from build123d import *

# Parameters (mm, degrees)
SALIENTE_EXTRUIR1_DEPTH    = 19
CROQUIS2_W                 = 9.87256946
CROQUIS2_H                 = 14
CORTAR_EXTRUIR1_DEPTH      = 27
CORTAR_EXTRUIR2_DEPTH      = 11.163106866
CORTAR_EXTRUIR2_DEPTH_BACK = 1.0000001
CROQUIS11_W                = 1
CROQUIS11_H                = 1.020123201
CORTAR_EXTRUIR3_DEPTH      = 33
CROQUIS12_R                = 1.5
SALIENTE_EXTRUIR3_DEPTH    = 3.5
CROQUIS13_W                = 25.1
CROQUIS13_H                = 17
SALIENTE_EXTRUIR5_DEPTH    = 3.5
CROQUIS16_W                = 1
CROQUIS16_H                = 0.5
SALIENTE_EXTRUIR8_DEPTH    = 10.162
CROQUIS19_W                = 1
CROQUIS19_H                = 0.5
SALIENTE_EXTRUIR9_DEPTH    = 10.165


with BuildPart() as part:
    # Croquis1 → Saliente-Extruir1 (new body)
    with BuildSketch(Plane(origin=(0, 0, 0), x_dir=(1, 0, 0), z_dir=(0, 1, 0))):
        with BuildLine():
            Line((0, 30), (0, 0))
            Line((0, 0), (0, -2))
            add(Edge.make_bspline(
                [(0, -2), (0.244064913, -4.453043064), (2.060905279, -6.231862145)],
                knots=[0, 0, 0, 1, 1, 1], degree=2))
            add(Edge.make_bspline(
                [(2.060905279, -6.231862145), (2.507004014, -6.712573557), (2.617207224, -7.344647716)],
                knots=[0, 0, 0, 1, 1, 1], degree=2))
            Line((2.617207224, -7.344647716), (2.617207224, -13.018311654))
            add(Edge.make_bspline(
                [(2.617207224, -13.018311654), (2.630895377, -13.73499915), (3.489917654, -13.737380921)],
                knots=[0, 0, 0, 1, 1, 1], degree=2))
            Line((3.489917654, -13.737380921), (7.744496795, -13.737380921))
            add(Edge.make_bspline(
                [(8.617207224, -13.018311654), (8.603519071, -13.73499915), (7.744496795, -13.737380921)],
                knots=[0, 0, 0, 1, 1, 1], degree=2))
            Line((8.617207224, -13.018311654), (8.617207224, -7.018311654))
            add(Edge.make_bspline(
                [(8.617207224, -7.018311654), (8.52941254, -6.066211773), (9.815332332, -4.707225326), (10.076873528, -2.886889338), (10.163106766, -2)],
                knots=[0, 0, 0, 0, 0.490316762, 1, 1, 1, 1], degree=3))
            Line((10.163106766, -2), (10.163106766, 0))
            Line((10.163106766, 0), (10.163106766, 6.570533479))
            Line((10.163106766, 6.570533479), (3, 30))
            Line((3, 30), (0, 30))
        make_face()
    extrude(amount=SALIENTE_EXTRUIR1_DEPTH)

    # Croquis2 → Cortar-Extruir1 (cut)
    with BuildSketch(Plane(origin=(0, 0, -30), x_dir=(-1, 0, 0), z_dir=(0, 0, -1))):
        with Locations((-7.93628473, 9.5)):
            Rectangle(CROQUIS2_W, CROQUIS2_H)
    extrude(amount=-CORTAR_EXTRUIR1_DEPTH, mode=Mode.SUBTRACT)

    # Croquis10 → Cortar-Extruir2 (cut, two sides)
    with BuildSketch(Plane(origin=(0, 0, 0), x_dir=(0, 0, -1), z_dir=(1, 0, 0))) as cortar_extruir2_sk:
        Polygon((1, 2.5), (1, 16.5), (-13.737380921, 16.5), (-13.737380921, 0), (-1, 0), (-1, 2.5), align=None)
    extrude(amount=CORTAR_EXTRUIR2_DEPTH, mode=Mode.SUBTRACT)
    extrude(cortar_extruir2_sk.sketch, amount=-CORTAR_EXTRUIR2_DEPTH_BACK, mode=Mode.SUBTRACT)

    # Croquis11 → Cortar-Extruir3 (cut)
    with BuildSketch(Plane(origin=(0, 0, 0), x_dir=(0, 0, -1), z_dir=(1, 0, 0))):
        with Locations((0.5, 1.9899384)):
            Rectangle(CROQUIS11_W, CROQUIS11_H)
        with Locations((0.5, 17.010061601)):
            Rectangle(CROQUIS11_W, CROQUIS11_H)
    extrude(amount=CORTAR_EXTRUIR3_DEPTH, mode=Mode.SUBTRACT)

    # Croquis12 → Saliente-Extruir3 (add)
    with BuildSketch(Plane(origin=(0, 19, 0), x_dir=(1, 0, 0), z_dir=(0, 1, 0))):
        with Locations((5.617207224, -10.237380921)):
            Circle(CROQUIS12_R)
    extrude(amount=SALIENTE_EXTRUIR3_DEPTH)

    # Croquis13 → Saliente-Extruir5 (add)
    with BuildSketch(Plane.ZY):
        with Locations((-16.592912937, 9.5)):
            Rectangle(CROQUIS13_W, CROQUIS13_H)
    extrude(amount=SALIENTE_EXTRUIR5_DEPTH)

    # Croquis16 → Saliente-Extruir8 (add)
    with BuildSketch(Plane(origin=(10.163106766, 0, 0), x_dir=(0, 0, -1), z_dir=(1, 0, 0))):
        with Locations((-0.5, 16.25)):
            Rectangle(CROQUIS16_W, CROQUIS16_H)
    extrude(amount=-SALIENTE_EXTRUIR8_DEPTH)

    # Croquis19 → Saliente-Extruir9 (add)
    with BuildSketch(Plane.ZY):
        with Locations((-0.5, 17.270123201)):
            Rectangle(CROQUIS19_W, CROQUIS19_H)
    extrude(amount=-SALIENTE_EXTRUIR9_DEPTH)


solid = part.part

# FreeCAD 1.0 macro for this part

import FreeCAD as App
import Part
import Sketcher
Q = App.Units.Quantity


def add_polygon(sketch, points):
    """Adds a closed chain of lines whose ends are joined by coincident constraints."""
    first, n = sketch.GeometryCount, len(points)
    for a, b in zip(points, points[1:] + points[:1]):
        sketch.addGeometry(Part.LineSegment(App.Vector(*a, 0), App.Vector(*b, 0)), False)
    for i in range(n):
        sketch.addConstraint(Sketcher.Constraint("Coincident", first + i, 2, first + (i + 1) % n, 1))

doc = App.newDocument("Part")
body = doc.addObject("PartDesign::Body", "Body")

sketch1 = body.newObject("Sketcher::SketchObject", "Sketch")
sketch1.AttachmentSupport = (doc.getObject("XZ_Plane"), [""])
sketch1.MapMode = "FlatFace"
sketch1.addGeometry(Part.LineSegment(App.Vector(0, -30, 0), App.Vector(0, 2, 0)), False)
sketch1.addGeometry(Part.BSplineCurve([App.Vector(0, 2, 0), App.Vector(0.244065, 4.453043, 0), App.Vector(2.060905, 6.231862, 0)], [3, 3], [0, 1], False, 2, [1, 1, 1], False), False)
sketch1.addGeometry(Part.BSplineCurve([App.Vector(2.060905, 6.231862, 0), App.Vector(2.507004, 6.712574, 0), App.Vector(2.617207, 7.344648, 0)], [3, 3], [0, 1], False, 2, [1, 1, 1], False), False)
sketch1.addGeometry(Part.LineSegment(App.Vector(2.617207, 7.344648, 0), App.Vector(2.617207, 13.018312, 0)), False)
sketch1.addGeometry(Part.BSplineCurve([App.Vector(2.617207, 13.018312, 0), App.Vector(2.630895, 13.734999, 0), App.Vector(3.489918, 13.737381, 0)], [3, 3], [0, 1], False, 2, [1, 1, 1], False), False)
sketch1.addGeometry(Part.LineSegment(App.Vector(3.489918, 13.737381, 0), App.Vector(7.744497, 13.737381, 0)), False)
sketch1.addGeometry(Part.BSplineCurve([App.Vector(8.617207, 13.018312, 0), App.Vector(8.603519, 13.734999, 0), App.Vector(7.744497, 13.737381, 0)], [3, 3], [0, 1], False, 2, [1, 1, 1], False), False)
sketch1.addGeometry(Part.LineSegment(App.Vector(8.617207, 13.018312, 0), App.Vector(8.617207, 7.018312, 0)), False)
sketch1.addGeometry(Part.BSplineCurve([App.Vector(8.617207, 7.018312, 0), App.Vector(8.529413, 6.066212, 0), App.Vector(9.815332, 4.707225, 0), App.Vector(10.076874, 2.886889, 0), App.Vector(10.163107, 2, 0)], [4, 1, 4], [0, 0.490316762, 1], False, 3, [1, 1, 1, 1, 1], False), False)
sketch1.addGeometry(Part.LineSegment(App.Vector(10.163107, 2, 0), App.Vector(10.163107, -6.570533, 0)), False)
sketch1.addGeometry(Part.LineSegment(App.Vector(10.163107, -6.570533, 0), App.Vector(3, -30, 0)), False)
sketch1.addGeometry(Part.LineSegment(App.Vector(3, -30, 0), App.Vector(0, -30, 0)), False)
sketch1.addConstraint(Sketcher.Constraint("Block", 1))
sketch1.addConstraint(Sketcher.Constraint("Block", 2))
sketch1.addConstraint(Sketcher.Constraint("Block", 4))
sketch1.addConstraint(Sketcher.Constraint("Block", 6))
sketch1.addConstraint(Sketcher.Constraint("Block", 8))
sketch1.addConstraint(Sketcher.Constraint("Coincident", 0, 2, 1, 1))
sketch1.addConstraint(Sketcher.Constraint("Coincident", 2, 2, 3, 1))
sketch1.addConstraint(Sketcher.Constraint("Coincident", 3, 2, 4, 1))
sketch1.addConstraint(Sketcher.Constraint("Coincident", 4, 2, 5, 1))
sketch1.addConstraint(Sketcher.Constraint("Coincident", 5, 2, 6, 2))
sketch1.addConstraint(Sketcher.Constraint("Coincident", 6, 1, 7, 1))
sketch1.addConstraint(Sketcher.Constraint("Coincident", 7, 2, 8, 1))
sketch1.addConstraint(Sketcher.Constraint("Coincident", 8, 2, 9, 1))
sketch1.addConstraint(Sketcher.Constraint("Coincident", 9, 2, 10, 1))
sketch1.addConstraint(Sketcher.Constraint("Coincident", 10, 2, 11, 1))
sketch1.addConstraint(Sketcher.Constraint("Coincident", 11, 2, 0, 1))
sketch1.addConstraint(Sketcher.Constraint("Vertical", 0))
sketch1.addConstraint(Sketcher.Constraint("Vertical", 9))
sketch1.addConstraint(Sketcher.Constraint("Horizontal", 11))
sketch1.addConstraint(Sketcher.Constraint("DistanceX", 11, 2, 11, 1, 3.0))
sketch1.addConstraint(Sketcher.Constraint("DistanceY", 0, 1, 0, 2, 32.0))
sketch1.addConstraint(Sketcher.Constraint("Angle", 10, Q("-107 deg")))
pad1 = body.newObject("PartDesign::Pad", "Pad")
pad1.Profile = sketch1
pad1.Length = 19
pad1.Reversed = True

sketch2 = body.newObject("Sketcher::SketchObject", "Sketch001")
sketch2.AttachmentSupport = (doc.getObject("XY_Plane"), [""])
sketch2.MapMode = "FlatFace"
sketch2.AttachmentOffset = App.Placement(App.Vector(0, 0, -30), App.Rotation())
add_polygon(sketch2, [(13, 16), (13, 2), (3, 2), (3, 16)])
sketch2.addConstraint(Sketcher.Constraint("Vertical", 0))
sketch2.addConstraint(Sketcher.Constraint("Horizontal", 1))
sketch2.addConstraint(Sketcher.Constraint("Vertical", 2))
sketch2.addConstraint(Sketcher.Constraint("Horizontal", 3))
sketch2.addConstraint(Sketcher.Constraint("DistanceY", 0, 2, 0, 1, 14.0))
sketch2.addConstraint(Sketcher.Constraint("DistanceX", -1, 1, 1, 2, 3.0))
sketch2.addConstraint(Sketcher.Constraint("DistanceY", -1, 1, 0, 2, 2.5))
sketch2.addConstraint(Sketcher.Constraint("DistanceX", 1, 2, 1, 1, 9.872569))
pocket1 = body.newObject("PartDesign::Pocket", "Pocket")
pocket1.Profile = sketch2
pocket1.Length = 27
pocket1.Reversed = True

sketch3 = body.newObject("Sketcher::SketchObject", "Sketch002")
sketch3.AttachmentSupport = (doc.getObject("YZ_Plane"), [""])
sketch3.MapMode = "FlatFace"
add_polygon(sketch3, [(2.5, -1), (16.5, -1), (16.5, 13.7), (0, 13.7), (0, 1), (2.5, 1)])
sketch3.addConstraint(Sketcher.Constraint("Horizontal", 0))
sketch3.addConstraint(Sketcher.Constraint("Vertical", 1))
sketch3.addConstraint(Sketcher.Constraint("Horizontal", 2))
sketch3.addConstraint(Sketcher.Constraint("Vertical", 3))
sketch3.addConstraint(Sketcher.Constraint("Horizontal", 4))
sketch3.addConstraint(Sketcher.Constraint("Vertical", 5))
sketch3.addConstraint(Sketcher.Constraint("PointOnObject", 2, 2, -2))
sketch3.addConstraint(Sketcher.Constraint("DistanceX", 0, 1, 0, 2, 14.0))
sketch3.addConstraint(Sketcher.Constraint("DistanceY", 5, 2, 5, 1, 2.0))
sketch3.addConstraint(Sketcher.Constraint("DistanceX", 2, 2, 2, 1, 16.5))
sketch3.addConstraint(Sketcher.Constraint("DistanceY", 0, 2, -1, 1, 1.0))
sketch3.addConstraint(Sketcher.Constraint("DistanceY", 1, 1, 1, 2, 14.737381))
pocket2 = body.newObject("PartDesign::Pocket", "Pocket001")
pocket2.Profile = sketch3
pocket2.Type = "ThroughAll"
pocket2.Midplane = True

sketch4 = body.newObject("Sketcher::SketchObject", "Sketch003")
sketch4.AttachmentSupport = (doc.getObject("YZ_Plane"), [""])
sketch4.MapMode = "FlatFace"
add_polygon(sketch4, [(2.5, 0), (1.5, 0), (1.5, -1), (2.5, -1)])
add_polygon(sketch4, [(17.5, 0), (16.5, 0), (16.5, -1), (17.5, -1)])
sketch4.addConstraint(Sketcher.Constraint("Horizontal", 0))
sketch4.addConstraint(Sketcher.Constraint("Vertical", 1))
sketch4.addConstraint(Sketcher.Constraint("Horizontal", 2))
sketch4.addConstraint(Sketcher.Constraint("Vertical", 3))
sketch4.addConstraint(Sketcher.Constraint("Horizontal", 4))
sketch4.addConstraint(Sketcher.Constraint("Vertical", 5))
sketch4.addConstraint(Sketcher.Constraint("Horizontal", 6))
sketch4.addConstraint(Sketcher.Constraint("Vertical", 7))
sketch4.addConstraint(Sketcher.Constraint("PointOnObject", 0, 2, -1))
sketch4.addConstraint(Sketcher.Constraint("PointOnObject", 4, 2, -1))
sketch4.addConstraint(Sketcher.Constraint("Horizontal", 2, 2, 5, 2))
sketch4.addConstraint(Sketcher.Constraint("Equal", 2, 4))
sketch4.addConstraint(Sketcher.Constraint("DistanceY", 1, 2, 1, 1, 1.0))
sketch4.addConstraint(Sketcher.Constraint("DistanceX", 3, 2, 4, 2, 14.0))
sketch4.addConstraint(Sketcher.Constraint("DistanceX", -1, 1, 2, 2, 2.5))
sketch4.addConstraint(Sketcher.Constraint("DistanceX", 0, 2, 0, 1, 1.020123))
pocket3 = body.newObject("PartDesign::Pocket", "Pocket002")
pocket3.Profile = sketch4
pocket3.Length = 33
pocket3.Reversed = True

sketch5 = body.newObject("Sketcher::SketchObject", "Sketch004")
sketch5.AttachmentSupport = (doc.getObject("XZ_Plane"), [""])
sketch5.MapMode = "FlatFace"
sketch5.AttachmentOffset = App.Placement(App.Vector(0, 0, -19), App.Rotation())
sketch5.addGeometry(Part.Circle(App.Vector(5.6, 10.2, 0), App.Vector(0, 0, 1), 1.5), False)
sketch5.addConstraint(Sketcher.Constraint("Diameter", 0, 3.0))
sketch5.addConstraint(Sketcher.Constraint("DistanceY", -1, 1, 0, 3, 10.237381))
sketch5.addConstraint(Sketcher.Constraint("DistanceX", -1, 1, 0, 3, 5.617207))
pad2 = body.newObject("PartDesign::Pad", "Pad001")
pad2.Profile = sketch5
pad2.Length = 3.5
pad2.Reversed = True

sketch6 = body.newObject("Sketcher::SketchObject", "Sketch005")
sketch6.AttachmentSupport = (doc.getObject("YZ_Plane"), [""])
sketch6.MapMode = "FlatFace"
add_polygon(sketch6, [(18, -29), (1, -29), (1, -4), (18, -4)])
sketch6.addConstraint(Sketcher.Constraint("Horizontal", 0))
sketch6.addConstraint(Sketcher.Constraint("Vertical", 1))
sketch6.addConstraint(Sketcher.Constraint("Horizontal", 2))
sketch6.addConstraint(Sketcher.Constraint("Vertical", 3))
sketch6.addConstraint(Sketcher.Constraint("DistanceX", 0, 2, 0, 1, 17.0))
sketch6.addConstraint(Sketcher.Constraint("DistanceY", 1, 1, 1, 2, 25.1))
sketch6.addConstraint(Sketcher.Constraint("DistanceX", -1, 1, 0, 2, 1.0))
sketch6.addConstraint(Sketcher.Constraint("DistanceY", 0, 2, -1, 1, 29.142913))
pad3 = body.newObject("PartDesign::Pad", "Pad002")
pad3.Profile = sketch6
pad3.Length = 3.5
pad3.Reversed = True

sketch7 = body.newObject("Sketcher::SketchObject", "Sketch006")
sketch7.AttachmentSupport = (doc.getObject("YZ_Plane"), [""])
sketch7.MapMode = "FlatFace"
sketch7.AttachmentOffset = App.Placement(App.Vector(0, 0, 10.163107), App.Rotation())
add_polygon(sketch7, [(16.5, 1), (16, 1), (16, 0), (16.5, 0)])
sketch7.addConstraint(Sketcher.Constraint("Horizontal", 0))
sketch7.addConstraint(Sketcher.Constraint("Vertical", 1))
sketch7.addConstraint(Sketcher.Constraint("Horizontal", 2))
sketch7.addConstraint(Sketcher.Constraint("Vertical", 3))
sketch7.addConstraint(Sketcher.Constraint("PointOnObject", 1, 2, -1))
sketch7.addConstraint(Sketcher.Constraint("DistanceY", 1, 2, 1, 1, 1.0))
sketch7.addConstraint(Sketcher.Constraint("DistanceX", 0, 2, 0, 1, 0.5))
sketch7.addConstraint(Sketcher.Constraint("DistanceX", -1, 1, 0, 2, 16.0))
pad4 = body.newObject("PartDesign::Pad", "Pad003")
pad4.Profile = sketch7
pad4.Length = 10.162
pad4.Reversed = True

sketch8 = body.newObject("Sketcher::SketchObject", "Sketch007")
sketch8.AttachmentSupport = (doc.getObject("YZ_Plane"), [""])
sketch8.MapMode = "FlatFace"
add_polygon(sketch8, [(17.5, -1), (17, -1), (17, 0), (17.5, 0)])
sketch8.addConstraint(Sketcher.Constraint("Horizontal", 0))
sketch8.addConstraint(Sketcher.Constraint("Vertical", 1))
sketch8.addConstraint(Sketcher.Constraint("Horizontal", 2))
sketch8.addConstraint(Sketcher.Constraint("Vertical", 3))
sketch8.addConstraint(Sketcher.Constraint("PointOnObject", 1, 2, -1))
sketch8.addConstraint(Sketcher.Constraint("DistanceY", 1, 1, 1, 2, 1.0))
sketch8.addConstraint(Sketcher.Constraint("DistanceX", 0, 2, 0, 1, 0.5))
sketch8.addConstraint(Sketcher.Constraint("DistanceX", -1, 1, 0, 2, 17.020123))
pad5 = body.newObject("PartDesign::Pad", "Pad004")
pad5.Profile = sketch8
pad5.Length = 10.165

doc.recompute()
